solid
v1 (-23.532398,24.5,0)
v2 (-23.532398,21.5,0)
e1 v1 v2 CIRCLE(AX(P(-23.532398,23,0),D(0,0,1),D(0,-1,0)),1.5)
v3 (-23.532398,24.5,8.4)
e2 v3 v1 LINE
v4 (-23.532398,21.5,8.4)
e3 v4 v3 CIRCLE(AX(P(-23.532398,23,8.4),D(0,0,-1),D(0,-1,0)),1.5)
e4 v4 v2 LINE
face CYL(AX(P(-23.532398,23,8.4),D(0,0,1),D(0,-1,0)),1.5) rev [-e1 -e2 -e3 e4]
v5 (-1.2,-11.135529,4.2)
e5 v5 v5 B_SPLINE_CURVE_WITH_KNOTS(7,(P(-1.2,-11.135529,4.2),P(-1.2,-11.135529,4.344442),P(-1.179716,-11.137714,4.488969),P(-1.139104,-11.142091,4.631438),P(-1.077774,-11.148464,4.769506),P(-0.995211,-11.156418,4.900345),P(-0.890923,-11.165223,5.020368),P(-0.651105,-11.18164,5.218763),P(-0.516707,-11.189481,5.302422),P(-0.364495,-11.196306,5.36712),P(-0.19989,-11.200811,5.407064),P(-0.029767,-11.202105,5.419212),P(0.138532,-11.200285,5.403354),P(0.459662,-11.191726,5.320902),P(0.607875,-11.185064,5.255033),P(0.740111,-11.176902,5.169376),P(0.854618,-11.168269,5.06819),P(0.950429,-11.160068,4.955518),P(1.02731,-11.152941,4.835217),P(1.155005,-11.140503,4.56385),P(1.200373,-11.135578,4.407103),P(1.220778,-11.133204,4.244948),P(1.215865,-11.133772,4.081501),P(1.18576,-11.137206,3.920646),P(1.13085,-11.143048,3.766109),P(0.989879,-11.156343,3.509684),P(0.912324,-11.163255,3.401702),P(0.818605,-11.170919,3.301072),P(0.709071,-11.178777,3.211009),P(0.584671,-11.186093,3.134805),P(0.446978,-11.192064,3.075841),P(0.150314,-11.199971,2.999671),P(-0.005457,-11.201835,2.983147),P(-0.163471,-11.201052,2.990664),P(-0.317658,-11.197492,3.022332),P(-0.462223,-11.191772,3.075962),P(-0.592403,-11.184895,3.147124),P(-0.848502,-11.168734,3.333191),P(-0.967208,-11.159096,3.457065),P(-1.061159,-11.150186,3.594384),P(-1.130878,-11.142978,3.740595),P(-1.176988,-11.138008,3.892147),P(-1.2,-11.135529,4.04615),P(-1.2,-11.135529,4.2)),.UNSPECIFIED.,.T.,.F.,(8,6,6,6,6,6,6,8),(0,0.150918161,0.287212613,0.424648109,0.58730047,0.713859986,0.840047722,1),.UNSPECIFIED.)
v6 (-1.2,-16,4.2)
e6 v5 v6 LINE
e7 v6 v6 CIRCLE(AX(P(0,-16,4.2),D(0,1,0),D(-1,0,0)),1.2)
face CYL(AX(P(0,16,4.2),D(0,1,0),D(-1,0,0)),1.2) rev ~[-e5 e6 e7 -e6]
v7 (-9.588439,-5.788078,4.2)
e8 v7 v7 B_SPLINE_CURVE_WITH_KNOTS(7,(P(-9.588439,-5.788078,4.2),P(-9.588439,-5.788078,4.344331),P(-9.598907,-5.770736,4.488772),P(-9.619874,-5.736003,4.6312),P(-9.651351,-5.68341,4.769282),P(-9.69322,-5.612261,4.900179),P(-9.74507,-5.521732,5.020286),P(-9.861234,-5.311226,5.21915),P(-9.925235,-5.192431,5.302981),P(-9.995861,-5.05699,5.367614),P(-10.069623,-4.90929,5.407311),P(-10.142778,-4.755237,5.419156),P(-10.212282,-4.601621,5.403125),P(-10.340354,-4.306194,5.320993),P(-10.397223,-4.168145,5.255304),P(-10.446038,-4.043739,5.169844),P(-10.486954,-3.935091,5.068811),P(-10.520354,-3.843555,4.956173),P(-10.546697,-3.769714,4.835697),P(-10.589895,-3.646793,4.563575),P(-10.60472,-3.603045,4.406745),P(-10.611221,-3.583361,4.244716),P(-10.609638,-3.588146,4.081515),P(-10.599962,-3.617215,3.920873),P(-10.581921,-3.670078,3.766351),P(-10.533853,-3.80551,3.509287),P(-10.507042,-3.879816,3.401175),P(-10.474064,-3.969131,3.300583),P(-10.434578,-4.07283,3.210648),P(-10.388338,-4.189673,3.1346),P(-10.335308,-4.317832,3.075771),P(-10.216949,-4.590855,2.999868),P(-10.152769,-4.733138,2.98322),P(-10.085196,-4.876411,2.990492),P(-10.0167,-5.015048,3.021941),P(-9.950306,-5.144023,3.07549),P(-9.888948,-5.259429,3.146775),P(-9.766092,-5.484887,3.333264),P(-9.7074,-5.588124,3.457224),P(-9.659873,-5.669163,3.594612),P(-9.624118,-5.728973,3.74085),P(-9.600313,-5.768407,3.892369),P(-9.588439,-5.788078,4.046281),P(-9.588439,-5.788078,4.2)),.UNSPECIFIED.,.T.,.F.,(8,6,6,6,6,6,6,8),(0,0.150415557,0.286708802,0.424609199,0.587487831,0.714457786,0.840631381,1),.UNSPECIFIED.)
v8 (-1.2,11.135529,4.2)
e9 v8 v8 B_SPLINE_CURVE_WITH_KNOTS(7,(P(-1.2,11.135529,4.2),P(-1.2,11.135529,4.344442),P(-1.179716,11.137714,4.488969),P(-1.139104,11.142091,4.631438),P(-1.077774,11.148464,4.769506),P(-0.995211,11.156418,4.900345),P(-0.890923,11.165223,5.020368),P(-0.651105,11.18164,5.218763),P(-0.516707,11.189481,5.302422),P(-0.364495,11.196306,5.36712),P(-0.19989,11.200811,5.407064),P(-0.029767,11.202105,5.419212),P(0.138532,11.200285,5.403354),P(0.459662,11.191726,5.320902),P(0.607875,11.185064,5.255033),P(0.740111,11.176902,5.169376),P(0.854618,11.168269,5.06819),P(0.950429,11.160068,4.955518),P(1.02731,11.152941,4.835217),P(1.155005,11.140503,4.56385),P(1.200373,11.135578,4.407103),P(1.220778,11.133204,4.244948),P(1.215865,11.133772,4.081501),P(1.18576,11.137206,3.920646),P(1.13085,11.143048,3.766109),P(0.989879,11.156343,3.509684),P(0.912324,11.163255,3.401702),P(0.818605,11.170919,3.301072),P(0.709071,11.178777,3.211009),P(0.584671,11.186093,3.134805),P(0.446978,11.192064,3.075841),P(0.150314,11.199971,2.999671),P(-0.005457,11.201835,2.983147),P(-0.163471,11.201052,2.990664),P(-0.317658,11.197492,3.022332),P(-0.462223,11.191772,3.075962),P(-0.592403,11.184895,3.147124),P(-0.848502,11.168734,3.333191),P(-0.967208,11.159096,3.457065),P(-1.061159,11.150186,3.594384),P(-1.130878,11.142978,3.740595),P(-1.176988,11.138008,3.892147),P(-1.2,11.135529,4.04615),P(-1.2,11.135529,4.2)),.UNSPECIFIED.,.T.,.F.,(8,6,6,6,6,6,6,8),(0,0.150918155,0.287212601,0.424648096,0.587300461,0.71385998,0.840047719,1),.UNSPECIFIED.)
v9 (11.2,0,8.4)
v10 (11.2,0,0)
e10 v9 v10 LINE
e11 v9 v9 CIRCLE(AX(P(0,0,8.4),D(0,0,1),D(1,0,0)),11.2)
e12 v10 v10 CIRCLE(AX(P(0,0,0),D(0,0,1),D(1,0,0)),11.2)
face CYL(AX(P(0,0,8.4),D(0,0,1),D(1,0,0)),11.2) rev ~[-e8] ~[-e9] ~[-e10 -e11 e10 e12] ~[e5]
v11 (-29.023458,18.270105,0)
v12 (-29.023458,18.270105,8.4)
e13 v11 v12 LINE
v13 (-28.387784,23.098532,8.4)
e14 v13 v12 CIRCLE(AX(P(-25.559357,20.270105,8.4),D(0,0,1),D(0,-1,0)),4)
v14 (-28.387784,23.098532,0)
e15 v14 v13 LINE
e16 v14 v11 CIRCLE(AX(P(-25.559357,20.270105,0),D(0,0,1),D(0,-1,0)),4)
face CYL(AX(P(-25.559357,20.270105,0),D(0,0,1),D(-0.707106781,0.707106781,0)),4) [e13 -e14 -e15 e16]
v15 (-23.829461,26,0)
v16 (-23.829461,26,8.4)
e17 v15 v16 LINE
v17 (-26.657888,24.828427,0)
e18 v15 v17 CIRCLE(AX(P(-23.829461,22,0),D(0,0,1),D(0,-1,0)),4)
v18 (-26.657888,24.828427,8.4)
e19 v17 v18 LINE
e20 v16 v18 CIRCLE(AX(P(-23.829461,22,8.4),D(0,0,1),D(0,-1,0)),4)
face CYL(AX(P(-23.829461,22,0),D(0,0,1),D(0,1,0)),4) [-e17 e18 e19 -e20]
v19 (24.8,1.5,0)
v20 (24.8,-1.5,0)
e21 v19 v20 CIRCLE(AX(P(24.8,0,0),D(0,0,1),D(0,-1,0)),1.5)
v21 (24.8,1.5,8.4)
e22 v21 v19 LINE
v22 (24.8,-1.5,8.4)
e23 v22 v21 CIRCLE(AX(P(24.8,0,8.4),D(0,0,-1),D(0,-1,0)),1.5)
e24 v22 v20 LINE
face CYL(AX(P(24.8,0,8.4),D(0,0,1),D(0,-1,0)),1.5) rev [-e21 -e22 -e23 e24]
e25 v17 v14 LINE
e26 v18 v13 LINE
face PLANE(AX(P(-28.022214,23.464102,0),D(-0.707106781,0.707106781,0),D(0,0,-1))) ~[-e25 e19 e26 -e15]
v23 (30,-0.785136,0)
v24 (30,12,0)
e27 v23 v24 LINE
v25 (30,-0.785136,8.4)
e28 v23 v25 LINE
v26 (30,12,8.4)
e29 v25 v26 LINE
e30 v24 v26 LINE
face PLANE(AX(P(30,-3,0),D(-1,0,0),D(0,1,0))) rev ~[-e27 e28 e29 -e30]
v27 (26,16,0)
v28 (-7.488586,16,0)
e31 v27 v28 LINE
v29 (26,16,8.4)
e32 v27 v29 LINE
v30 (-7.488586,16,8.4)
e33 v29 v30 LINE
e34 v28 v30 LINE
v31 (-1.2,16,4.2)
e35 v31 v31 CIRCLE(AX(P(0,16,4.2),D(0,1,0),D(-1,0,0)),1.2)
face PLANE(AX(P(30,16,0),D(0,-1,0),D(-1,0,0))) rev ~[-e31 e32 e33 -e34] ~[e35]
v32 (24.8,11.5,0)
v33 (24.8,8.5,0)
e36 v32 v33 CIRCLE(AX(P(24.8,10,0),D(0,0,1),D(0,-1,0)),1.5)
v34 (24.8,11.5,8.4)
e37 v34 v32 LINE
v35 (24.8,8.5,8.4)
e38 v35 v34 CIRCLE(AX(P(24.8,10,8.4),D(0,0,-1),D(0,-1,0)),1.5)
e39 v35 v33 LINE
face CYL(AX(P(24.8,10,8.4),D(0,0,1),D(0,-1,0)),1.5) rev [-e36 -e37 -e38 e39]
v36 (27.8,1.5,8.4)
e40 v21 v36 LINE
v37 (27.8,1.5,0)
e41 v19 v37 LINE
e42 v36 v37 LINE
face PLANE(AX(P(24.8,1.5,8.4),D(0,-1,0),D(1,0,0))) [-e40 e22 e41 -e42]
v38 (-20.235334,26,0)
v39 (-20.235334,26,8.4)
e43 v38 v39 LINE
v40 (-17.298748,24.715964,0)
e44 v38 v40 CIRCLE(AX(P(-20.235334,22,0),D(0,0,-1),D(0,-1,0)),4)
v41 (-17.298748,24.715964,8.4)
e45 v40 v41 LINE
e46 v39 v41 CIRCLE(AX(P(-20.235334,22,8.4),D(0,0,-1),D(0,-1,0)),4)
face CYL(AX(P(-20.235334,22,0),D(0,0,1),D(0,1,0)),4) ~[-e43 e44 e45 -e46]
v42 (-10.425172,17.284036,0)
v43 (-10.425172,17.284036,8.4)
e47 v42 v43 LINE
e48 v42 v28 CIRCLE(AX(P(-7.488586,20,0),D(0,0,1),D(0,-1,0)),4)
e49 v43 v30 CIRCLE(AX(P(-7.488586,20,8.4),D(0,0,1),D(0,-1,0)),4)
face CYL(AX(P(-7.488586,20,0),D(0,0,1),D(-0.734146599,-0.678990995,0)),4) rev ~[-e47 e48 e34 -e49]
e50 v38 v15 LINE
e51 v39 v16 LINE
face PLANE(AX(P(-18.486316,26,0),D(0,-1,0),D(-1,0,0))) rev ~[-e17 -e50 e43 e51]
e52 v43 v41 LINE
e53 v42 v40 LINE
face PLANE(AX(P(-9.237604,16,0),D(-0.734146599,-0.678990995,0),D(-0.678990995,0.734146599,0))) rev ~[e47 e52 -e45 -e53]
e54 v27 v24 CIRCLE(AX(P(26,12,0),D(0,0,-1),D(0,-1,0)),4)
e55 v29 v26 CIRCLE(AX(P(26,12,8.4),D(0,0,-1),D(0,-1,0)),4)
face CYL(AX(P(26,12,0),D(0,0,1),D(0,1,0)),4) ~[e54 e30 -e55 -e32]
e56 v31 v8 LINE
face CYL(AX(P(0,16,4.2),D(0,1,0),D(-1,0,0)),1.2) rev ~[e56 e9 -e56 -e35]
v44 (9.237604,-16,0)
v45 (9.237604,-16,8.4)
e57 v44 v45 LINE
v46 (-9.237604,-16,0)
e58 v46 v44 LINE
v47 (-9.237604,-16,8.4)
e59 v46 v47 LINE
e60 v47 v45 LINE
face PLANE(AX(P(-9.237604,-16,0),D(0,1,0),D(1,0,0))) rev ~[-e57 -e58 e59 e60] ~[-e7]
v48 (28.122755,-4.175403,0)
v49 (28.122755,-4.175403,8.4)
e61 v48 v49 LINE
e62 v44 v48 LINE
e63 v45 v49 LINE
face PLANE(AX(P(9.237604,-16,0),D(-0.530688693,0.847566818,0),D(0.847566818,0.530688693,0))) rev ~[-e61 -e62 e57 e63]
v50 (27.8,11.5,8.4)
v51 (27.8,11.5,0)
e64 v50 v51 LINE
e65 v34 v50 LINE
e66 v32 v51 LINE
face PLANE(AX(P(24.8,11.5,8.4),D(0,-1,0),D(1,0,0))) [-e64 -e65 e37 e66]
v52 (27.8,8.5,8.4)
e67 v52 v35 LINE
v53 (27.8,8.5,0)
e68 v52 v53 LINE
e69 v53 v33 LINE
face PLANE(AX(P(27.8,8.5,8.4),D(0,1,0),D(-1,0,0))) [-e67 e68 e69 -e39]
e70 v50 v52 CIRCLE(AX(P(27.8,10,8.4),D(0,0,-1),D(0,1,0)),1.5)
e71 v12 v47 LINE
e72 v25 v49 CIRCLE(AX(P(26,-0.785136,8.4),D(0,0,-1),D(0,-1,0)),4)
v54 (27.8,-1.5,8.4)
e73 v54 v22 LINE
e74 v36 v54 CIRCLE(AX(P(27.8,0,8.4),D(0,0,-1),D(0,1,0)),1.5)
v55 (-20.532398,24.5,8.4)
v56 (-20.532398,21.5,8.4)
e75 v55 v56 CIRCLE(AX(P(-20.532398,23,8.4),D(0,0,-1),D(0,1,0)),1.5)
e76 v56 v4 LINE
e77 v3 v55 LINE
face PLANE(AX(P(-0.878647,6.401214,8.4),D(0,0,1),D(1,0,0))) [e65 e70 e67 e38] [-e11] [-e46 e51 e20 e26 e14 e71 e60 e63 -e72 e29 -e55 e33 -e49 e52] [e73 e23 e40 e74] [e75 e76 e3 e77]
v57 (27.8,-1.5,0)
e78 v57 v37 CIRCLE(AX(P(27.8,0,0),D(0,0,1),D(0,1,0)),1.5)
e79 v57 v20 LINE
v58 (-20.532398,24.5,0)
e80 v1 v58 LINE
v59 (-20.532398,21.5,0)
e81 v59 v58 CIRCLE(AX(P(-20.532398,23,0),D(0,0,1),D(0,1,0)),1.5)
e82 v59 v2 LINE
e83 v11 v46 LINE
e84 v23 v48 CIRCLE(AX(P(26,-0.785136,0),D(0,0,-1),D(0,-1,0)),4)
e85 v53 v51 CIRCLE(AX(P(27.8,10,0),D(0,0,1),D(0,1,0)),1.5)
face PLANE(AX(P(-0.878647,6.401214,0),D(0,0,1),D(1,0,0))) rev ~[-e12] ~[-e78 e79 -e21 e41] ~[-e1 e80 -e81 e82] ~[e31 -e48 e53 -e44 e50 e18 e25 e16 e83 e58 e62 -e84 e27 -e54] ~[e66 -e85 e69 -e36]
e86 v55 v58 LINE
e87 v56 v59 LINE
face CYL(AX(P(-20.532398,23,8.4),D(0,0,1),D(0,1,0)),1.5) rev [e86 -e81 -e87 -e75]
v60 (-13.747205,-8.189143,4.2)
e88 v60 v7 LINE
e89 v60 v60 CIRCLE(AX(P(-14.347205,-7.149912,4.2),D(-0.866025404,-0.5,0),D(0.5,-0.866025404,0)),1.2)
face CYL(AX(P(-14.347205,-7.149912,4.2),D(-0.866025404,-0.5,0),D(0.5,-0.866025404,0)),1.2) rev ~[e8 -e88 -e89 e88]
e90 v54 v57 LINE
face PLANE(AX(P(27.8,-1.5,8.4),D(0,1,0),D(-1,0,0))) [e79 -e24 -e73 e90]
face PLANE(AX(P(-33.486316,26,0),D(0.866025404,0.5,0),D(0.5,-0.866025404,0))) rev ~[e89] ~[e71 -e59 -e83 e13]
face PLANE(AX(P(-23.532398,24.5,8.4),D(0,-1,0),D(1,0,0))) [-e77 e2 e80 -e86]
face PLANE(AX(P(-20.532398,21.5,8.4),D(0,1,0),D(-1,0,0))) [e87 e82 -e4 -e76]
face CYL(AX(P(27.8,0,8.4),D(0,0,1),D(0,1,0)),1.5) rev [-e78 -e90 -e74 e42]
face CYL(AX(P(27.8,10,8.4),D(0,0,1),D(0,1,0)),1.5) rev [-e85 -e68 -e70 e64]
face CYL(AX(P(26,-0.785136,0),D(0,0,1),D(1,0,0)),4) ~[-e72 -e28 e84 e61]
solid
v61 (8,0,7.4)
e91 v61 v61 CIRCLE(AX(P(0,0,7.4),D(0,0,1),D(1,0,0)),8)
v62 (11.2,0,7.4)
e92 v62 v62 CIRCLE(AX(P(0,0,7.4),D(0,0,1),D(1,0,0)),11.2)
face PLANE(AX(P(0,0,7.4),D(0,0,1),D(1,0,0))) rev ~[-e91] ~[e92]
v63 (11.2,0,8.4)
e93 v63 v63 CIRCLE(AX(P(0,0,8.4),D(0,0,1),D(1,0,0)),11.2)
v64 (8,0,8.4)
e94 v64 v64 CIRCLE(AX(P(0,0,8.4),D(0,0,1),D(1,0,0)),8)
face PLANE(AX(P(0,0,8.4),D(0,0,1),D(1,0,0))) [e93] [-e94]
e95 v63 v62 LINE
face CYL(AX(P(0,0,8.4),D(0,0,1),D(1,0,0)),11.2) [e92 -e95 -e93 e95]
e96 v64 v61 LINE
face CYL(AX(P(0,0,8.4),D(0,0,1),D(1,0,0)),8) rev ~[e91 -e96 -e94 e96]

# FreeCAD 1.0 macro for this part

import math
import FreeCAD as App
import Part
import Sketcher

V = App.Vector
Q = App.Units.Quantity


def edges_at(feature, points):
    """Names of the edges that pass closest to the given points."""
    edges = feature.Shape.Edges
    near = lambda p: min(range(len(edges)), key=lambda i: edges[i].distToShape(Part.Vertex(*p))[0])
    return sorted({f"Edge{near(p) + 1}" for p in points})

doc = App.newDocument("Part")
body = doc.addObject("PartDesign::Body", "Body")

sketch1 = doc.addObject("Sketcher::SketchObject", "Sketch")
body.addObject(sketch1)
sketch1.AttachmentSupport = (doc.XY_Plane, [""])
sketch1.MapMode = "FlatFace"
sketch1.addGeometry(Part.LineSegment(V(30, 16, 0), V(-9, 16, 0)), False)
sketch1.addGeometry(Part.LineSegment(V(-9, 16, 0), V(-18, 26, 0)), False)
sketch1.addGeometry(Part.LineSegment(V(-18, 26, 0), V(-33, 26, 0)), False)
sketch1.addGeometry(Part.LineSegment(V(-33, 26, 0), V(-9, -16, 0)), False)
sketch1.addGeometry(Part.LineSegment(V(-9, -16, 0), V(9, -16, 0)), False)
sketch1.addGeometry(Part.LineSegment(V(9, -16, 0), V(30, -3, 0)), False)
sketch1.addGeometry(Part.LineSegment(V(30, -3, 0), V(30, 16, 0)), False)
sketch1.addConstraint(Sketcher.Constraint("Coincident", 0, 2, 1, 1))
sketch1.addConstraint(Sketcher.Constraint("Coincident", 1, 2, 2, 1))
sketch1.addConstraint(Sketcher.Constraint("Coincident", 2, 2, 3, 1))
sketch1.addConstraint(Sketcher.Constraint("Coincident", 3, 2, 4, 1))
sketch1.addConstraint(Sketcher.Constraint("Coincident", 4, 2, 5, 1))
sketch1.addConstraint(Sketcher.Constraint("Coincident", 5, 2, 6, 1))
sketch1.addConstraint(Sketcher.Constraint("Coincident", 6, 2, 0, 1))
sketch1.addConstraint(Sketcher.Constraint("Horizontal", 0))
sketch1.addConstraint(Sketcher.Constraint("Horizontal", 2))
sketch1.addConstraint(Sketcher.Constraint("Horizontal", 4))
sketch1.addConstraint(Sketcher.Constraint("Vertical", 6))
sketch1.addConstraint(Sketcher.Constraint("Symmetric", 0, 2, 4, 2, -1, 1))
sketch1.addConstraint(Sketcher.Constraint("Vertical", 0, 2, 3, 2))
sketch1.addConstraint(Sketcher.Constraint("DistanceX", 2, 2, 2, 1, 15.0))
sketch1.addConstraint(Sketcher.Constraint("DistanceY", 6, 1, 6, 2, 19.0))
sketch1.addConstraint(Sketcher.Constraint("Angle", 3, Q("-60 deg")))
sketch1.addConstraint(Sketcher.Constraint("DistanceY", -1, 1, 0, 2, 16.0))
sketch1.addConstraint(Sketcher.Constraint("DistanceY", -1, 1, 1, 2, 26.0))
sketch1.addConstraint(Sketcher.Constraint("DistanceX", -1, 1, 5, 2, 30.0))
sketch1.addConstraint(Sketcher.Constraint("DistanceX", 4, 1, 4, 2, 18.475209))
pad1 = doc.addObject("PartDesign::Pad", "Pad")
body.addObject(pad1)
pad1.Profile = sketch1
pad1.Length = 8.4

sketch2 = doc.addObject("Sketcher::SketchObject", "Sketch001")
body.addObject(sketch2)
sketch2.AttachmentSupport = (doc.XY_Plane, [""])
sketch2.MapMode = "FlatFace"
sketch2.AttachmentOffset = App.Placement(V(0, 0, 8.4), App.Rotation())
sketch2.addGeometry(Part.Circle(V(0, 0, 0), V(0, 0, 1), 11), False)
sketch2.addConstraint(Sketcher.Constraint("Coincident", 0, 3, -1, 1))
sketch2.addConstraint(Sketcher.Constraint("Diameter", 0, 22.4))
pocket1 = doc.addObject("PartDesign::Pocket", "Pocket")
body.addObject(pocket1)
pocket1.Profile = sketch2
pocket1.Type = "ThroughAll"

sketch3 = doc.addObject("Sketcher::SketchObject", "Sketch002")
body.addObject(sketch3)
sketch3.AttachmentSupport = (doc.XZ_Plane, [""])
sketch3.MapMode = "FlatFace"
sketch3.AttachmentOffset = App.Placement(V(0, 0, -16), App.Rotation())
sketch3.addGeometry(Part.Circle(V(0, 4.2, 0), V(0, 0, 1), 1.2), False)
sketch3.addConstraint(Sketcher.Constraint("PointOnObject", 0, 3, -2))
sketch3.addConstraint(Sketcher.Constraint("Diameter", 0, 2.4))
sketch3.addConstraint(Sketcher.Constraint("DistanceY", -1, 1, 0, 3, 4.2))
pocket2 = doc.addObject("PartDesign::Pocket", "Pocket001")
body.addObject(pocket2)
pocket2.Profile = sketch3
pocket2.Type = "ThroughAll"
pocket2.Reversed = True

sketch4 = doc.addObject("Sketcher::SketchObject", "Sketch003")
body.addObject(sketch4)
sketch4.Placement = App.Placement(V(-13.856406, -8, 0), App.Rotation(V(0, 0, 1), V(-0.5, 0.866025404, 0), V(-0.866025404, -0.5, 0), "ZXY"))
sketch4.addGeometry(Part.Circle(V(4.2, 1, 0), V(0, 0, 1), 1.2), False)
sketch4.addConstraint(Sketcher.Constraint("Diameter", 0, 2.4))
sketch4.addConstraint(Sketcher.Constraint("DistanceX", -1, 1, 0, 3, 4.2))
sketch4.addConstraint(Sketcher.Constraint("DistanceY", -1, 1, 0, 3, 0.981597))
pocket3 = doc.addObject("PartDesign::Pocket", "Pocket002")
body.addObject(pocket3)
pocket3.Profile = sketch4
pocket3.Length = 10
doc.recompute()

chamfer = doc.addObject("PartDesign::Chamfer", "Chamfer")
body.addObject(chamfer)
chamfer.Base = (pocket3, edges_at(pocket3, [(-33.486, 26, 4.2)]))
chamfer.ChamferType = "Two distances"
chamfer.Size = 8
chamfer.Size2 = 5.856406
doc.recompute()

fillet = doc.addObject("PartDesign::Fillet", "Fillet")
body.addObject(fillet)
fillet.Base = (chamfer, edges_at(chamfer, [
    (30, -3, 4.2),
    (-18.486, 26, 4.2),
    (-9.238, 16, 4.2),
    (30, 16, 4.2),
    (-30.558, 20.928, 4.2),
    (-25.486, 26, 4.2),
]))
fillet.Radius = 4

sketch5 = doc.addObject("Sketcher::SketchObject", "Sketch004")
body.addObject(sketch5)
sketch5.AttachmentSupport = (doc.XY_Plane, [""])
sketch5.MapMode = "FlatFace"
sketch5.AttachmentOffset = App.Placement(V(0, 0, 8.4), App.Rotation())
sketch5.addGeometry(Part.LineSegment(V(27.8, 1.5, 0), V(24.8, 1.5, 0)), False)
sketch5.addGeometry(Part.ArcOfCircle(Part.Circle(V(24.8, 0, 0), V(0, 0, 1), 1.5), math.radians(90), math.radians(270)), False)
sketch5.addGeometry(Part.LineSegment(V(24.8, -1.5, 0), V(27.8, -1.5, 0)), False)
sketch5.addGeometry(Part.ArcOfCircle(Part.Circle(V(27.8, 0, 0), V(0, 0, 1), 1.5), math.radians(-90), math.radians(90)), False)
sketch5.addGeometry(Part.LineSegment(V(27.8, 11.5, 0), V(24.8, 11.5, 0)), False)
sketch5.addGeometry(Part.ArcOfCircle(Part.Circle(V(24.8, 10, 0), V(0, 0, 1), 1.5), math.radians(90), math.radians(270)), False)
sketch5.addGeometry(Part.LineSegment(V(24.8, 8.5, 0), V(27.8, 8.5, 0)), False)
sketch5.addGeometry(Part.ArcOfCircle(Part.Circle(V(27.8, 10, 0), V(0, 0, 1), 1.5), math.radians(-90), math.radians(90)), False)
sketch5.addGeometry(Part.LineSegment(V(-20.5, 24.5, 0), V(-23.5, 24.5, 0)), False)
sketch5.addGeometry(Part.ArcOfCircle(Part.Circle(V(-23.5, 23, 0), V(0, 0, 1), 1.5), math.radians(90), math.radians(270)), False)
sketch5.addGeometry(Part.LineSegment(V(-23.5, 21.5, 0), V(-20.5, 21.5, 0)), False)
sketch5.addGeometry(Part.ArcOfCircle(Part.Circle(V(-20.5, 23, 0), V(0, 0, 1), 1.5), math.radians(-90), math.radians(90)), False)
sketch5.addConstraint(Sketcher.Constraint("Tangent", 0, 2, 1, 1))
sketch5.addConstraint(Sketcher.Constraint("Tangent", 1, 2, 2, 1))
sketch5.addConstraint(Sketcher.Constraint("Tangent", 2, 2, 3, 1))
sketch5.addConstraint(Sketcher.Constraint("Tangent", 3, 2, 0, 1))
sketch5.addConstraint(Sketcher.Constraint("Tangent", 4, 2, 5, 1))
sketch5.addConstraint(Sketcher.Constraint("Tangent", 5, 2, 6, 1))
sketch5.addConstraint(Sketcher.Constraint("Tangent", 6, 2, 7, 1))
sketch5.addConstraint(Sketcher.Constraint("Tangent", 7, 2, 4, 1))
sketch5.addConstraint(Sketcher.Constraint("Tangent", 8, 2, 9, 1))
sketch5.addConstraint(Sketcher.Constraint("Tangent", 9, 2, 10, 1))
sketch5.addConstraint(Sketcher.Constraint("Tangent", 10, 2, 11, 1))
sketch5.addConstraint(Sketcher.Constraint("Tangent", 11, 2, 8, 1))
sketch5.addConstraint(Sketcher.Constraint("Horizontal", 0))
sketch5.addConstraint(Sketcher.Constraint("Horizontal", 2))
sketch5.addConstraint(Sketcher.Constraint("Horizontal", 4))
sketch5.addConstraint(Sketcher.Constraint("Horizontal", 6))
sketch5.addConstraint(Sketcher.Constraint("Horizontal", 8))
sketch5.addConstraint(Sketcher.Constraint("Horizontal", 10))
sketch5.addConstraint(Sketcher.Constraint("Equal", 3, 5))
sketch5.addConstraint(Sketcher.Constraint("Equal", 7, 9))
sketch5.addConstraint(Sketcher.Constraint("PointOnObject", 1, 3, -1))
sketch5.addConstraint(Sketcher.Constraint("Vertical", 1, 3, 5, 3))
sketch5.addConstraint(Sketcher.Constraint("Vertical", 3, 3, 7, 3))
sketch5.addConstraint(Sketcher.Constraint("Equal", 6, 8))
sketch5.addConstraint(Sketcher.Constraint("Radius", 1, 1.5))
sketch5.addConstraint(Sketcher.Constraint("DistanceX", 0, 2, 0, 1, 3.0))
sketch5.addConstraint(Sketcher.Constraint("DistanceY", -1, 1, 5, 3, 10.0))
sketch5.addConstraint(Sketcher.Constraint("DistanceY", -1, 1, 9, 3, 23.0))
sketch5.addConstraint(Sketcher.Constraint("DistanceX", -1, 1, 1, 3, 24.8))
sketch5.addConstraint(Sketcher.Constraint("DistanceX", 9, 3, -1, 1, 23.532398))
pocket4 = doc.addObject("PartDesign::Pocket", "Pocket003")
body.addObject(pocket4)
pocket4.Profile = sketch5
pocket4.Type = "ThroughAll"
body2 = doc.addObject("PartDesign::Body", "Body001")

sketch6 = doc.addObject("Sketcher::SketchObject", "Sketch005")
body2.addObject(sketch6)
sketch6.AttachmentSupport = (doc.getObject("XY_Plane001"), [""])
sketch6.MapMode = "FlatFace"
sketch6.AttachmentOffset = App.Placement(V(0, 0, 8.4), App.Rotation())
sketch6.addGeometry(Part.Circle(V(0, 0, 0), V(0, 0, 1), 11), False)
sketch6.addGeometry(Part.Circle(V(0, 0, 0), V(0, 0, 1), 8), False)
sketch6.addConstraint(Sketcher.Constraint("Coincident", 0, 3, -1, 1))
sketch6.addConstraint(Sketcher.Constraint("Coincident", 1, 3, -1, 1))
sketch6.addConstraint(Sketcher.Constraint("Diameter", 1, 16.0))
sketch6.addConstraint(Sketcher.Constraint("Diameter", 0, 22.4))
pad2 = doc.addObject("PartDesign::Pad", "Pad001")
body2.addObject(pad2)
pad2.Profile = sketch6
pad2.Length = 1
pad2.Reversed = True

doc.recompute()
